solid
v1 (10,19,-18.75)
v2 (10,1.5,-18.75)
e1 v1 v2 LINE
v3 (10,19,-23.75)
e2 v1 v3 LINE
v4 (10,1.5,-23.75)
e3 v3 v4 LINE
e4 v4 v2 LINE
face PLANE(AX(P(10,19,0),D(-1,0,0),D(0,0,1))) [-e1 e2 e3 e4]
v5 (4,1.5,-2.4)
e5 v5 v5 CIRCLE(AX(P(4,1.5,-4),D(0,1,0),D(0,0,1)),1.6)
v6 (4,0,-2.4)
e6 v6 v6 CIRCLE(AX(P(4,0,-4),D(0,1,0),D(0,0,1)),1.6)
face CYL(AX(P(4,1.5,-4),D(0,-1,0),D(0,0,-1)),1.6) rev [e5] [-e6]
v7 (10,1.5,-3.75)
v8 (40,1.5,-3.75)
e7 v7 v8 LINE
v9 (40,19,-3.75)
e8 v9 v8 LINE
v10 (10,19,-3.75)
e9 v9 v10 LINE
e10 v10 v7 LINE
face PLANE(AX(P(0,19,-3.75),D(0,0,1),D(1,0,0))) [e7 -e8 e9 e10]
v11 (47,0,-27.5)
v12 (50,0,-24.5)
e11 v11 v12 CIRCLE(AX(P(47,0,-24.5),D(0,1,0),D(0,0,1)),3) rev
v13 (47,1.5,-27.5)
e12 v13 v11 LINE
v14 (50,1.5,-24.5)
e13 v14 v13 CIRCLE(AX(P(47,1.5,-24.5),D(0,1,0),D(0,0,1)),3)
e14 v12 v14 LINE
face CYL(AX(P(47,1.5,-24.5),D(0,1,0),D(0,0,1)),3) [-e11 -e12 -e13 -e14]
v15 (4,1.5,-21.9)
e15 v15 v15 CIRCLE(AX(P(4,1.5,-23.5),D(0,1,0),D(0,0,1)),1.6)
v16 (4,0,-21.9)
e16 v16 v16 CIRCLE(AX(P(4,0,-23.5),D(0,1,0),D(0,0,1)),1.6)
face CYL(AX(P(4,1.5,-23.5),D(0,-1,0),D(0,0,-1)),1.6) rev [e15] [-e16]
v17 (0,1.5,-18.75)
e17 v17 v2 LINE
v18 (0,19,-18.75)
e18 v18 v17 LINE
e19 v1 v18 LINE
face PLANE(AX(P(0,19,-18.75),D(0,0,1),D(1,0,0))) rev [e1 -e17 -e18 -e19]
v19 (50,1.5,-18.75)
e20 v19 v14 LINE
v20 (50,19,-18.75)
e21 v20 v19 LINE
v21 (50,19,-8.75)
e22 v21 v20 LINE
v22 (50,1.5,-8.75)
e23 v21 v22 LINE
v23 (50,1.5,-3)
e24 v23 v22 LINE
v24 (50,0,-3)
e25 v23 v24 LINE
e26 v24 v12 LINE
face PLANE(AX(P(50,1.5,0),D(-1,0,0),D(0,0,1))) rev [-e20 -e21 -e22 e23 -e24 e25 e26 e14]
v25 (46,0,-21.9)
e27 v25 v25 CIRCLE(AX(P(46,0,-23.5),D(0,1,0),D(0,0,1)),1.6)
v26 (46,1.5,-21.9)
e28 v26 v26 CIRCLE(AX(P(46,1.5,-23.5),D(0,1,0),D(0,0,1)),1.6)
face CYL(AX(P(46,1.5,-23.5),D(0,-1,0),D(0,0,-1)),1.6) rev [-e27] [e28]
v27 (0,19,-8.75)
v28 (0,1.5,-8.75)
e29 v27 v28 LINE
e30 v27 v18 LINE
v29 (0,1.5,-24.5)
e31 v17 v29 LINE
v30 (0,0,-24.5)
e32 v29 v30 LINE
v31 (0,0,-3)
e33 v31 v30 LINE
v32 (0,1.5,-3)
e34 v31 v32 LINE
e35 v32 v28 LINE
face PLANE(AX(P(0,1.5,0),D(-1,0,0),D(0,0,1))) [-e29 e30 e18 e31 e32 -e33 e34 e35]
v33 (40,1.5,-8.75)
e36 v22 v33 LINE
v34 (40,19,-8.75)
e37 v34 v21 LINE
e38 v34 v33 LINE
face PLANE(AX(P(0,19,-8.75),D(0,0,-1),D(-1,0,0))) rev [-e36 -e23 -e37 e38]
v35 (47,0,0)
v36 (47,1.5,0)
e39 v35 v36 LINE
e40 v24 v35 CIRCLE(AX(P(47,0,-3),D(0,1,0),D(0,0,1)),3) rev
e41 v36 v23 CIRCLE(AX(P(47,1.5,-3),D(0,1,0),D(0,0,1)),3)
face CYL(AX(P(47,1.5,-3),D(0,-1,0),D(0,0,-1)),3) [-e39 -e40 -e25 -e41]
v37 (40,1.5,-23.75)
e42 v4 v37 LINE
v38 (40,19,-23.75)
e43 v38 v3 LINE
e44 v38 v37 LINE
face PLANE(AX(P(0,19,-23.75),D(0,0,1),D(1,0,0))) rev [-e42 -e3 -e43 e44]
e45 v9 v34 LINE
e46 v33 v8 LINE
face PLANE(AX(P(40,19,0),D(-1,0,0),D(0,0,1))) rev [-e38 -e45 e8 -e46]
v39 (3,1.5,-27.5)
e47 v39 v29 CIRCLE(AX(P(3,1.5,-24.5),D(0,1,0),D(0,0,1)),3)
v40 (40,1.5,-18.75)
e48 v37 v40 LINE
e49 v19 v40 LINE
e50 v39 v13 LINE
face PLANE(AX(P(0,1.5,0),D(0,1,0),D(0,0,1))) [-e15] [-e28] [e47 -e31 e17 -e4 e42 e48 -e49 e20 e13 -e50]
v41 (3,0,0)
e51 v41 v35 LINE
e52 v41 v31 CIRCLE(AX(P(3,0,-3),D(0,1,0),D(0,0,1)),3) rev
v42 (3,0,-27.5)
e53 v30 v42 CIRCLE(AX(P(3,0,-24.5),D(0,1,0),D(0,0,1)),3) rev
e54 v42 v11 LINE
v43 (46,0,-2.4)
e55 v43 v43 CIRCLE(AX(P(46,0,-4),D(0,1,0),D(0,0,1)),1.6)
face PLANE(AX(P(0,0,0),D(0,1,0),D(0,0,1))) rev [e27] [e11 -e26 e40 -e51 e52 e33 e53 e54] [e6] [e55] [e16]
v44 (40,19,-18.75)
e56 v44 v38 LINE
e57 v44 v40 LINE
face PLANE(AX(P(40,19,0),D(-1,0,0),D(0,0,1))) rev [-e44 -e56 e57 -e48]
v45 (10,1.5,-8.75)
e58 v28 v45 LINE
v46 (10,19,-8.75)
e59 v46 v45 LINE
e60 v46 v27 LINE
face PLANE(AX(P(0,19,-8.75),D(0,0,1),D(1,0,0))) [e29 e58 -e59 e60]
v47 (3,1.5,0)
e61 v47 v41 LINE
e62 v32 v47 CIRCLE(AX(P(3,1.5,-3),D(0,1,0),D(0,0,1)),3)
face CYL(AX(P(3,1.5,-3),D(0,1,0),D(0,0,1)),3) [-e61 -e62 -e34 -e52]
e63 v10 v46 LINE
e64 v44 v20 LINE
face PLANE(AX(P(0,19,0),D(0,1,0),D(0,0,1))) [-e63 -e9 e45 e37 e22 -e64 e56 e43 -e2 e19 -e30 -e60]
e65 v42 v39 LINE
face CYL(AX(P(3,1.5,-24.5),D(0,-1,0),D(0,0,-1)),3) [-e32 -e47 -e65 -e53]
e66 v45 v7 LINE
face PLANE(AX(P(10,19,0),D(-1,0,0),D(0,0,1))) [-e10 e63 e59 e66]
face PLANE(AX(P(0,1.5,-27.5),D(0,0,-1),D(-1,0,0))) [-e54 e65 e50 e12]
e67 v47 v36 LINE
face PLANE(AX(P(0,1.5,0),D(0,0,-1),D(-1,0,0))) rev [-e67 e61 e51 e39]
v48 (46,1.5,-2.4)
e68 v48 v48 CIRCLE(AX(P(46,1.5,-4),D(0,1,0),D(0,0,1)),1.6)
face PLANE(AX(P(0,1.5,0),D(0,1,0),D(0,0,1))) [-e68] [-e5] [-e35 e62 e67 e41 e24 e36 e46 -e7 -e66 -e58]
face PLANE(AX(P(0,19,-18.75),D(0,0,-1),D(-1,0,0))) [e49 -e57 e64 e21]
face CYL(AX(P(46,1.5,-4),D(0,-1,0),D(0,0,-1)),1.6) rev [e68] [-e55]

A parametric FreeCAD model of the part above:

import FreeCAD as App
import Part
import Sketcher

V = App.Vector


def edges_at(feature, points):
    """Names of the edges that pass closest to the given points."""
    edges = feature.Shape.Edges
    near = lambda p: min(range(len(edges)), key=lambda i: edges[i].distToShape(Part.Vertex(*p))[0])
    return sorted({f"Edge{near(p) + 1}" for p in points})

doc = App.newDocument("Part")
params = doc.addObject("Spreadsheet::Sheet", "Params")
for row, (alias, value) in enumerate([
    ("sketch1_diameter", "3.2 mm"),
    ("sketch1_width", "50 mm"),
    ("sketch1_height", "27.5 mm"),
    ("pad1_length", "1.5 mm"),
    ("fillet_radius", "3 mm"),
    ("sketch2_width", "10 mm"),
    ("sketch2_width2", "30 mm"),
    ("sketch2_height", "5 mm"),
    ("pad2_length", "19 mm"),
], start=1):
    params.set(f"A{row}", alias)
    params.set(f"B{row}", "=" + value)
    params.setAlias(f"B{row}", alias)

body = doc.addObject("PartDesign::Body", "Body")

# Sketch on XZ plane
sketch1 = body.newObject("Sketcher::SketchObject", "Sketch")
sketch1.AttachmentSupport = (doc.getObject("XZ_Plane"), [""])
sketch1.MapMode = "FlatFace"
sketch1.addGeometry([
    Part.LineSegment(V(0, -27.5, 0), V(0, 0, 0)),  # 0
    Part.LineSegment(V(0, 0, 0), V(50, 0, 0)),  # 1
    Part.LineSegment(V(50, 0, 0), V(50, -27.5, 0)),  # 2
    Part.LineSegment(V(50, -27.5, 0), V(0, -27.5, 0)),  # 3
    Part.Circle(V(4, -4, 0), V(0, 0, 1), 1.6),  # 4
    Part.Circle(V(46, -4, 0), V(0, 0, 1), 1.6),  # 5
    Part.Circle(V(4, -23.5, 0), V(0, 0, 1), 1.6),  # 6
    Part.Circle(V(46, -23.5, 0), V(0, 0, 1), 1.6),  # 7
], False)
sketch1.addConstraint([
    Sketcher.Constraint("Coincident", 0, 2, 1, 1),
    Sketcher.Constraint("Coincident", 1, 2, 2, 1),
    Sketcher.Constraint("Coincident", 2, 2, 3, 1),
    Sketcher.Constraint("Coincident", 3, 2, 0, 1),
    Sketcher.Constraint("Vertical", 0),
    Sketcher.Constraint("Horizontal", 1),
    Sketcher.Constraint("Vertical", 2),
    Sketcher.Constraint("Horizontal", 3),
    Sketcher.Constraint("Coincident", 0, 2, -1, 1),
    Sketcher.Constraint("Equal", 4, 5),
    Sketcher.Constraint("Equal", 5, 6),
    Sketcher.Constraint("Equal", 6, 7),
    Sketcher.Constraint("Horizontal", 4, 3, 5, 3),
    Sketcher.Constraint("Horizontal", 6, 3, 7, 3),
    Sketcher.Constraint("Vertical", 4, 3, 6, 3),
    Sketcher.Constraint("Vertical", 5, 3, 7, 3),
    Sketcher.Constraint("Diameter", 4, 3.2),
    Sketcher.Constraint("DistanceX", 1, 1, 1, 2, 50.0),
    Sketcher.Constraint("DistanceY", 0, 1, 0, 2, 27.5),
    Sketcher.Constraint("DistanceX", -1, 1, 4, 3, 4.0),
    Sketcher.Constraint("DistanceY", 4, 3, -1, 1, 4.0),
    Sketcher.Constraint("DistanceX", -1, 1, 5, 3, 46.0),
    Sketcher.Constraint("DistanceY", 2, 2, 7, 3, 4.0),
])
sketch1.setExpression("Constraints[16]", "Params.sketch1_diameter")
sketch1.setExpression("Constraints[17]", "Params.sketch1_width")
sketch1.setExpression("Constraints[18]", "Params.sketch1_height")
pad1 = body.newObject("PartDesign::Pad", "Pad")
pad1.Profile = sketch1
pad1.setExpression("Length", "Params.pad1_length")
pad1.Reversed = True
doc.recompute()

fillet = body.newObject("PartDesign::Fillet", "Fillet")
fillet.Base = (pad1, edges_at(pad1, [
    (0, 0.75, 0),
    (0, 0.75, -27.5),
    (50, 0.75, -27.5),
    (50, 0.75, 0),
]))
fillet.setExpression("Radius", "Params.fillet_radius")

# Sketch on XZ plane
sketch2 = body.newObject("Sketcher::SketchObject", "Sketch001")
sketch2.AttachmentSupport = (doc.getObject("XZ_Plane"), [""])
sketch2.MapMode = "FlatFace"
sketch2.addGeometry([
    Part.LineSegment(V(0, -19, 0), V(0, -9, 0)),  # 0
    Part.LineSegment(V(0, -9, 0), V(10, -9, 0)),  # 1
    Part.LineSegment(V(10, -9, 0), V(10, -4, 0)),  # 2
    Part.LineSegment(V(10, -4, 0), V(40, -4, 0)),  # 3
    Part.LineSegment(V(40, -4, 0), V(40, -9, 0)),  # 4
    Part.LineSegment(V(40, -9, 0), V(50, -9, 0)),  # 5
    Part.LineSegment(V(50, -9, 0), V(50, -19, 0)),  # 6
    Part.LineSegment(V(50, -19, 0), V(40, -19, 0)),  # 7
    Part.LineSegment(V(40, -19, 0), V(40, -24, 0)),  # 8
    Part.LineSegment(V(40, -24, 0), V(10, -24, 0)),  # 9
    Part.LineSegment(V(10, -24, 0), V(10, -19, 0)),  # 10
    Part.LineSegment(V(10, -19, 0), V(0, -19, 0)),  # 11
], False)
sketch2.addConstraint([
    Sketcher.Constraint("Coincident", 0, 2, 1, 1),
    Sketcher.Constraint("Coincident", 1, 2, 2, 1),
    Sketcher.Constraint("Coincident", 2, 2, 3, 1),
    Sketcher.Constraint("Coincident", 3, 2, 4, 1),
    Sketcher.Constraint("Coincident", 4, 2, 5, 1),
    Sketcher.Constraint("Coincident", 5, 2, 6, 1),
    Sketcher.Constraint("Coincident", 6, 2, 7, 1),
    Sketcher.Constraint("Coincident", 7, 2, 8, 1),
    Sketcher.Constraint("Coincident", 8, 2, 9, 1),
    Sketcher.Constraint("Coincident", 9, 2, 10, 1),
    Sketcher.Constraint("Coincident", 10, 2, 11, 1),
    Sketcher.Constraint("Coincident", 11, 2, 0, 1),
    Sketcher.Constraint("Vertical", 0),
    Sketcher.Constraint("Horizontal", 1),
    Sketcher.Constraint("Vertical", 2),
    Sketcher.Constraint("Horizontal", 3),
    Sketcher.Constraint("Vertical", 4),
    Sketcher.Constraint("Horizontal", 5),
    Sketcher.Constraint("Vertical", 6),
    Sketcher.Constraint("Horizontal", 7),
    Sketcher.Constraint("Vertical", 8),
    Sketcher.Constraint("Horizontal", 9),
    Sketcher.Constraint("Vertical", 10),
    Sketcher.Constraint("Horizontal", 11),
    Sketcher.Constraint("PointOnObject", 0, 2, -2),
    Sketcher.Constraint("Horizontal", 1, 2, 4, 2),
    Sketcher.Constraint("Horizontal", 7, 2, 10, 2),
    Sketcher.Constraint("Vertical", 4, 2, 7, 2),
    Sketcher.Constraint("Vertical", 2, 2, 9, 2),
    Sketcher.Constraint("Equal", 1, 5),
    Sketcher.Constraint("Equal", 11, 0),
    Sketcher.Constraint("Equal", 4, 8),
    Sketcher.Constraint("DistanceX", 1, 1, 1, 2, 10.0),
    Sketcher.Constraint("DistanceX", 3, 1, 3, 2, 30.0),
    Sketcher.Constraint("DistanceY", 2, 1, 2, 2, 5.0),
    Sketcher.Constraint("DistanceY", 0, 2, -1, 1, 8.75),
])
sketch2.setExpression("Constraints[32]", "Params.sketch2_width")
sketch2.setExpression("Constraints[33]", "Params.sketch2_width2")
sketch2.setExpression("Constraints[34]", "Params.sketch2_height")
pad2 = body.newObject("PartDesign::Pad", "Pad001")
pad2.Profile = sketch2
pad2.setExpression("Length", "Params.pad2_length")
pad2.Reversed = True

doc.recompute()
